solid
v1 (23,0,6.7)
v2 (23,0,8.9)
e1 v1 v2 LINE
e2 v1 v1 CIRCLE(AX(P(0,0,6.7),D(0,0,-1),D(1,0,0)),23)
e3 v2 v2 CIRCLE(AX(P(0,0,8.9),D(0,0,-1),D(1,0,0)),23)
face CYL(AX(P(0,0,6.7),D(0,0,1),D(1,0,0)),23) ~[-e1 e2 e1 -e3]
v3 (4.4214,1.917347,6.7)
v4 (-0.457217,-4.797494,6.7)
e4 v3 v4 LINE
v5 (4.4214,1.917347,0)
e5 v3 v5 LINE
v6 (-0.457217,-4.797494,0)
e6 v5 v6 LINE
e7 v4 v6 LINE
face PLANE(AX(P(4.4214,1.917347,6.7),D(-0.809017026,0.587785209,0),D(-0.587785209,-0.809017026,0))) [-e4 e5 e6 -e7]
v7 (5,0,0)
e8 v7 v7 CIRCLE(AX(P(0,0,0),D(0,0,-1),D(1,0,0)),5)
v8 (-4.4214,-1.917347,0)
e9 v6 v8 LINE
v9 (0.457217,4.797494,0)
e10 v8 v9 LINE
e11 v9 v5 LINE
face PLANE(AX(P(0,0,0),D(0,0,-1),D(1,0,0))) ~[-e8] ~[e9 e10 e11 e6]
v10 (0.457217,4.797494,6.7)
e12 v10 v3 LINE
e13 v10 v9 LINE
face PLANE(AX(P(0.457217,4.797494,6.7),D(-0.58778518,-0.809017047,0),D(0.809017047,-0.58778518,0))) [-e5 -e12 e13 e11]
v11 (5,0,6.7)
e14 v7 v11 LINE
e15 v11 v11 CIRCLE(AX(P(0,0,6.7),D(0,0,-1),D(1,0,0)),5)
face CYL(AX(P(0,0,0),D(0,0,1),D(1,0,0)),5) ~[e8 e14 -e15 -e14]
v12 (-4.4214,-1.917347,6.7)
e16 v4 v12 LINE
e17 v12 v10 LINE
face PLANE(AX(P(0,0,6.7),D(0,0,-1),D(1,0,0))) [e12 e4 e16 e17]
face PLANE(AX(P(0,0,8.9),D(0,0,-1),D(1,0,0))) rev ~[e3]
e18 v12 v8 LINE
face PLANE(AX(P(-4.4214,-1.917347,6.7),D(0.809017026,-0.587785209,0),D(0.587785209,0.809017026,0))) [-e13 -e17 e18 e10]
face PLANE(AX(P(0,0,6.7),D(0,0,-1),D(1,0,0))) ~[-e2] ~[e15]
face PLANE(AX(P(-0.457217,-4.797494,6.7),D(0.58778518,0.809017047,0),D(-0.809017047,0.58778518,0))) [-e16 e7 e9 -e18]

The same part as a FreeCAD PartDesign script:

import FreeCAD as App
import Part
import Sketcher
from FreeCAD import Vector
Q = App.Units.Quantity

doc = App.newDocument("Part")
body = doc.addObject("PartDesign::Body", "Body")

sketch1 = body.newObject("Sketcher::SketchObject", "Sketch")
sketch1.AttachmentSupport = (doc.getObject("XZ_Plane"), [""])
sketch1.MapMode = "FlatFace"
sketch1.addGeometry([
    Part.LineSegment(Vector(0, 8.9, 0), Vector(0, 0, 0)),
    Part.LineSegment(Vector(0, 0, 0), Vector(5, 0, 0)),
    Part.LineSegment(Vector(5, 0, 0), Vector(5, 6.7, 0)),
    Part.LineSegment(Vector(5, 6.7, 0), Vector(23, 6.7, 0)),
    Part.LineSegment(Vector(23, 6.7, 0), Vector(23, 8.9, 0)),
    Part.LineSegment(Vector(23, 8.9, 0), Vector(0, 8.9, 0)),
], False)
sketch1.addConstraint([
    Sketcher.Constraint("Coincident", 0, 2, 1, 1),
    Sketcher.Constraint("Coincident", 1, 2, 2, 1),
    Sketcher.Constraint("Coincident", 2, 2, 3, 1),
    Sketcher.Constraint("Coincident", 3, 2, 4, 1),
    Sketcher.Constraint("Coincident", 4, 2, 5, 1),
    Sketcher.Constraint("Coincident", 5, 2, 0, 1),
    Sketcher.Constraint("Vertical", 0),
    Sketcher.Constraint("Horizontal", 1),
    Sketcher.Constraint("Vertical", 2),
    Sketcher.Constraint("Horizontal", 3),
    Sketcher.Constraint("Vertical", 4),
    Sketcher.Constraint("Horizontal", 5),
    Sketcher.Constraint("Coincident", 0, 2, -1, 1),
    Sketcher.Constraint("DistanceX", 1, 1, 1, 2, 5.0),
    Sketcher.Constraint("DistanceX", 3, 1, 3, 2, 18.0),
    Sketcher.Constraint("DistanceY", 0, 2, 0, 1, 8.9),
    Sketcher.Constraint("DistanceY", 2, 1, 2, 2, 6.7),
])
revolution = body.newObject("PartDesign::Revolution", "Revolution")
revolution.Profile = sketch1
revolution.ReferenceAxis = (sketch1, ["V_Axis"])
revolution.Angle = 360

sketch2 = body.newObject("Sketcher::SketchObject", "Sketch001")
sketch2.AttachmentSupport = (doc.getObject("XY_Plane"), [""])
sketch2.MapMode = "FlatFace"
sketch2.AttachmentOffset = App.Placement(Vector(0, 0, 6.7), App.Rotation())
sketch2.addGeometry([
    Part.LineSegment(Vector(-4.4, -1.9, 0), Vector(0.5, 4.8, 0)),
    Part.LineSegment(Vector(0.5, 4.8, 0), Vector(4.4, 1.9, 0)),
    Part.LineSegment(Vector(4.4, 1.9, 0), Vector(-0.5, -4.8, 0)),
    Part.LineSegment(Vector(-0.5, -4.8, 0), Vector(-4.4, -1.9, 0)),
], False)
sketch2.addConstraint([
    Sketcher.Constraint("Coincident", 0, 2, 1, 1),
    Sketcher.Constraint("Coincident", 1, 2, 2, 1),
    Sketcher.Constraint("Coincident", 2, 2, 3, 1),
    Sketcher.Constraint("Coincident", 3, 2, 0, 1),
    Sketcher.Constraint("Symmetric", 0, 2, 2, 2, -1, 1),
    Sketcher.Constraint("Symmetric", 1, 2, 3, 2, -1, 1),
    Sketcher.Constraint("Perpendicular", 0, 1),
    Sketcher.Constraint("Angle", 0, Q("54.000003 deg")),
    Sketcher.Constraint("Distance", 0, 8.3),
    Sketcher.Constraint("Distance", 1, 4.899999),
])
pocket1 = body.newObject("PartDesign::Pocket", "Pocket")
pocket1.Profile = sketch2
pocket1.Type = "ThroughAll"

doc.recompute()
